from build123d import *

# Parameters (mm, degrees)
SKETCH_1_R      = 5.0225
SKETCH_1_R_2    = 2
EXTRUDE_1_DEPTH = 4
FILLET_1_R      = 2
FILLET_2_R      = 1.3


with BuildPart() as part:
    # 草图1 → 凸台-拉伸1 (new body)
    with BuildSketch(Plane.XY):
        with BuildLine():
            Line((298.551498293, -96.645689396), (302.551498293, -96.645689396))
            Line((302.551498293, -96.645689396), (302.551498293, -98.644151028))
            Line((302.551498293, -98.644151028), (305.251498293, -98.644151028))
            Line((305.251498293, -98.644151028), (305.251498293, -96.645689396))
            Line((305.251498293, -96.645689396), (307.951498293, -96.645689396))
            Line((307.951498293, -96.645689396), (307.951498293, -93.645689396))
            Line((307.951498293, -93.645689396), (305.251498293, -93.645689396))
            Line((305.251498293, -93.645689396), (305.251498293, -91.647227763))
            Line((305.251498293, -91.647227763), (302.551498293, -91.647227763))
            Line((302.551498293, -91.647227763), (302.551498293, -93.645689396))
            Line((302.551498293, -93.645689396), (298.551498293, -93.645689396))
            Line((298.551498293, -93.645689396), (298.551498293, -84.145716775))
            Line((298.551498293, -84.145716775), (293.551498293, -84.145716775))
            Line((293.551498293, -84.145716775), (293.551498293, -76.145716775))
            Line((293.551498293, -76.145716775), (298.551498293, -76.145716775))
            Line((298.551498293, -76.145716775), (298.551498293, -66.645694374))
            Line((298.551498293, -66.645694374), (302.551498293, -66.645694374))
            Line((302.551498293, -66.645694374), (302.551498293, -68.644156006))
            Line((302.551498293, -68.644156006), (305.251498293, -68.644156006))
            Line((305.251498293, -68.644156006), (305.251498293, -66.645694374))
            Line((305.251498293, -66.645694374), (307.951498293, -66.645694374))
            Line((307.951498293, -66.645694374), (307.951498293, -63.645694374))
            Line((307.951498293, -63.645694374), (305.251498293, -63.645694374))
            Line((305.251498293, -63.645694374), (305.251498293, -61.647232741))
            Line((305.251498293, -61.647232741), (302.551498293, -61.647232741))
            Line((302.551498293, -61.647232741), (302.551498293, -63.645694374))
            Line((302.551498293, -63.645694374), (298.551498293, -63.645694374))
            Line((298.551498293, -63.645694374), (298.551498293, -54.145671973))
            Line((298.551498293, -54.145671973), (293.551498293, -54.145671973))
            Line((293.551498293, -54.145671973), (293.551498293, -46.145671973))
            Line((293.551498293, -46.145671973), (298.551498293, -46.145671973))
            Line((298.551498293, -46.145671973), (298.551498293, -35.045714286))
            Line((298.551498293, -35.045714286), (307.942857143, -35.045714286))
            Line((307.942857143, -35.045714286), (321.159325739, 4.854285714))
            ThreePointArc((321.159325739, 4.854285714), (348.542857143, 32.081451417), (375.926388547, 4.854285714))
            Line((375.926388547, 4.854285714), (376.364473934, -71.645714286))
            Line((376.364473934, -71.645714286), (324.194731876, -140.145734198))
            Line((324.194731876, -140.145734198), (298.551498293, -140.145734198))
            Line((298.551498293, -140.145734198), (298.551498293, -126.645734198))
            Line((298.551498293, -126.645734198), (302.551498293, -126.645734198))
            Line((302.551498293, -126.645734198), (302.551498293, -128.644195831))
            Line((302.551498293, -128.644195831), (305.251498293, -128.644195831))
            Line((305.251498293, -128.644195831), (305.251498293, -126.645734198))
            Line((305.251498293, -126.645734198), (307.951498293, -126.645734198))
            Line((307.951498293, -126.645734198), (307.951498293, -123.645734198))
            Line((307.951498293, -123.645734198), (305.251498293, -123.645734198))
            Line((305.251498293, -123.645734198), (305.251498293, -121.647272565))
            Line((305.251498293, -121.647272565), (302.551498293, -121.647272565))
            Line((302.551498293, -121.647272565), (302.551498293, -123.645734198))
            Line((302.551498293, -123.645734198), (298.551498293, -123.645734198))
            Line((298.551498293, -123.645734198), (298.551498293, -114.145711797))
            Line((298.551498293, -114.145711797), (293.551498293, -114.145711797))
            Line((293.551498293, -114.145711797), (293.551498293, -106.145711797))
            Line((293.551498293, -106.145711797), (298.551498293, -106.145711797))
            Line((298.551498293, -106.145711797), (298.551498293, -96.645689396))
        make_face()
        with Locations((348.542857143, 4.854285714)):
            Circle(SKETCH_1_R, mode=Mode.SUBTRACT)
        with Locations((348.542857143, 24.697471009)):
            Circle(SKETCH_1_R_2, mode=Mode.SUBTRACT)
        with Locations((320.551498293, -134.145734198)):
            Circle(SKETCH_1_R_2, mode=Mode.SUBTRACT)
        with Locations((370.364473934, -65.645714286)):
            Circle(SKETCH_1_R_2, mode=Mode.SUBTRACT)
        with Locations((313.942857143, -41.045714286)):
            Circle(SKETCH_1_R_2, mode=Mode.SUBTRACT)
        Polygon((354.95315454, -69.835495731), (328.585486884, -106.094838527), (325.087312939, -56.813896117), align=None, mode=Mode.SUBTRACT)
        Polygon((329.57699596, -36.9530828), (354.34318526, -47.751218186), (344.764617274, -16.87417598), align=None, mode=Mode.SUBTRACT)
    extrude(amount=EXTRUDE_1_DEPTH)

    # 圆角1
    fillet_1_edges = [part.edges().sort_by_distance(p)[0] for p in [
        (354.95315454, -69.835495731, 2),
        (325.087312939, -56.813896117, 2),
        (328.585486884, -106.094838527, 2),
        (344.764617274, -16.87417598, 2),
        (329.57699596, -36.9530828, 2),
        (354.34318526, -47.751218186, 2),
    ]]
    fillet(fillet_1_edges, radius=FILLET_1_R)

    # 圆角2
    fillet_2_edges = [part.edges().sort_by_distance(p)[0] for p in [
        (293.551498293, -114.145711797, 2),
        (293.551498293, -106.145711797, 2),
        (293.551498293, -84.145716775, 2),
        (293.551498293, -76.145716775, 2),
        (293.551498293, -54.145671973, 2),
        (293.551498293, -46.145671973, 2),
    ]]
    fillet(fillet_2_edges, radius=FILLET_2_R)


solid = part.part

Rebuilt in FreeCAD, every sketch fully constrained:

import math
import FreeCAD as App
import Part
import Sketcher

V = App.Vector
Q = App.Units.Quantity


def edges_at(feature, points):
    """Names of the edges that pass closest to the given points."""
    edges = feature.Shape.Edges
    near = lambda p: min(range(len(edges)), key=lambda i: edges[i].distToShape(Part.Vertex(*p))[0])
    return sorted({f"Edge{near(p) + 1}" for p in points})

doc = App.newDocument("Part")
body = doc.addObject("PartDesign::Body", "Body")

sketch1 = body.newObject("Sketcher::SketchObject", "Sketch")
sketch1.AttachmentSupport = (doc.getObject("XY_Plane"), [""])
sketch1.MapMode = "FlatFace"
sketch1.addGeometry([
    Part.LineSegment(V(302.6, -96.6, 0), V(298.6, -96.6, 0)),
    Part.LineSegment(V(298.6, -96.6, 0), V(298.6, -106.1, 0)),
    Part.LineSegment(V(298.6, -106.1, 0), V(293.6, -106.1, 0)),
    Part.LineSegment(V(293.6, -106.1, 0), V(293.6, -114.1, 0)),
    Part.LineSegment(V(293.6, -114.1, 0), V(298.6, -114.1, 0)),
    Part.LineSegment(V(298.6, -114.1, 0), V(298.6, -123.6, 0)),
    Part.LineSegment(V(298.6, -123.6, 0), V(302.6, -123.6, 0)),
    Part.LineSegment(V(302.6, -123.6, 0), V(302.6, -121.6, 0)),
    Part.LineSegment(V(302.6, -121.6, 0), V(305.3, -121.6, 0)),
    Part.LineSegment(V(305.3, -121.6, 0), V(305.3, -123.6, 0)),
    Part.LineSegment(V(305.3, -123.6, 0), V(308, -123.6, 0)),
    Part.LineSegment(V(308, -123.6, 0), V(308, -126.6, 0)),
    Part.LineSegment(V(308, -126.6, 0), V(305.3, -126.6, 0)),
    Part.LineSegment(V(305.3, -126.6, 0), V(305.3, -128.6, 0)),
    Part.LineSegment(V(305.3, -128.6, 0), V(302.6, -128.6, 0)),
    Part.LineSegment(V(302.6, -128.6, 0), V(302.6, -126.6, 0)),
    Part.LineSegment(V(302.6, -126.6, 0), V(298.6, -126.6, 0)),
    Part.LineSegment(V(298.6, -126.6, 0), V(298.6, -140.1, 0)),
    Part.LineSegment(V(298.6, -140.1, 0), V(324.2, -140.1, 0)),
    Part.LineSegment(V(324.2, -140.1, 0), V(376.4, -71.6, 0)),
    Part.LineSegment(V(376.4, -71.6, 0), V(375.9, 4.9, 0)),
    Part.ArcOfCircle(Part.Circle(V(348.5, 4.7, 0), V(0, 0, 1), 27.4), math.radians(0), math.radians(180)),
    Part.LineSegment(V(321.2, 4.9, 0), V(307.9, -35, 0)),
    Part.LineSegment(V(307.9, -35, 0), V(298.6, -35, 0)),
    Part.LineSegment(V(298.6, -35, 0), V(298.6, -46.1, 0)),
    Part.LineSegment(V(298.6, -46.1, 0), V(293.6, -46.1, 0)),
    Part.LineSegment(V(293.6, -46.1, 0), V(293.6, -54.1, 0)),
    Part.LineSegment(V(293.6, -54.1, 0), V(298.6, -54.1, 0)),
    Part.LineSegment(V(298.6, -54.1, 0), V(298.6, -63.6, 0)),
    Part.LineSegment(V(298.6, -63.6, 0), V(302.6, -63.6, 0)),
    Part.LineSegment(V(302.6, -63.6, 0), V(302.6, -61.6, 0)),
    Part.LineSegment(V(302.6, -61.6, 0), V(305.3, -61.6, 0)),
    Part.LineSegment(V(305.3, -61.6, 0), V(305.3, -63.6, 0)),
    Part.LineSegment(V(305.3, -63.6, 0), V(308, -63.6, 0)),
    Part.LineSegment(V(308, -63.6, 0), V(308, -66.6, 0)),
    Part.LineSegment(V(308, -66.6, 0), V(305.3, -66.6, 0)),
    Part.LineSegment(V(305.3, -66.6, 0), V(305.3, -68.6, 0)),
    Part.LineSegment(V(305.3, -68.6, 0), V(302.6, -68.6, 0)),
    Part.LineSegment(V(302.6, -68.6, 0), V(302.6, -66.6, 0)),
    Part.LineSegment(V(302.6, -66.6, 0), V(298.6, -66.6, 0)),
    Part.LineSegment(V(298.6, -66.6, 0), V(298.6, -76.1, 0)),
    Part.LineSegment(V(298.6, -76.1, 0), V(293.6, -76.1, 0)),
    Part.LineSegment(V(293.6, -76.1, 0), V(293.6, -84.1, 0)),
    Part.LineSegment(V(293.6, -84.1, 0), V(298.6, -84.1, 0)),
    Part.LineSegment(V(298.6, -84.1, 0), V(298.6, -93.6, 0)),
    Part.LineSegment(V(298.6, -93.6, 0), V(302.6, -93.6, 0)),
    Part.LineSegment(V(302.6, -93.6, 0), V(302.6, -91.6, 0)),
    Part.LineSegment(V(302.6, -91.6, 0), V(305.3, -91.6, 0)),
    Part.LineSegment(V(305.3, -91.6, 0), V(305.3, -93.6, 0)),
    Part.LineSegment(V(305.3, -93.6, 0), V(308, -93.6, 0)),
    Part.LineSegment(V(308, -93.6, 0), V(308, -96.6, 0)),
    Part.LineSegment(V(308, -96.6, 0), V(305.3, -96.6, 0)),
    Part.LineSegment(V(305.3, -96.6, 0), V(305.3, -98.6, 0)),
    Part.LineSegment(V(305.3, -98.6, 0), V(302.6, -98.6, 0)),
    Part.LineSegment(V(302.6, -98.6, 0), V(302.6, -96.6, 0)),
    Part.Circle(V(370.4, -65.6, 0), V(0, 0, 1), 2),
    Part.Circle(V(320.6, -134.1, 0), V(0, 0, 1), 2),
    Part.LineSegment(V(355, -69.8, 0), V(328.6, -106.1, 0)),
    Part.LineSegment(V(328.6, -106.1, 0), V(325.1, -56.8, 0)),
    Part.LineSegment(V(325.1, -56.8, 0), V(355, -69.8, 0)),
    Part.Circle(V(348.5, 4.9, 0), V(0, 0, 1), 5),
    Part.Circle(V(348.5, 24.7, 0), V(0, 0, 1), 2),
    Part.LineSegment(V(329.6, -37, 0), V(344.8, -16.9, 0)),
    Part.LineSegment(V(344.8, -16.9, 0), V(354.3, -47.8, 0)),
    Part.LineSegment(V(354.3, -47.8, 0), V(329.6, -37, 0)),
    Part.Circle(V(313.9, -41, 0), V(0, 0, 1), 2),
], False)
sketch1.addConstraint([
    Sketcher.Constraint("Coincident", 0, 2, 1, 1),
    Sketcher.Constraint("Coincident", 1, 2, 2, 1),
    Sketcher.Constraint("Coincident", 2, 2, 3, 1),
    Sketcher.Constraint("Coincident", 3, 2, 4, 1),
    Sketcher.Constraint("Coincident", 4, 2, 5, 1),
    Sketcher.Constraint("Coincident", 5, 2, 6, 1),
    Sketcher.Constraint("Coincident", 6, 2, 7, 1),
    Sketcher.Constraint("Coincident", 7, 2, 8, 1),
    Sketcher.Constraint("Coincident", 8, 2, 9, 1),
    Sketcher.Constraint("Coincident", 9, 2, 10, 1),
    Sketcher.Constraint("Coincident", 10, 2, 11, 1),
    Sketcher.Constraint("Coincident", 11, 2, 12, 1),
    Sketcher.Constraint("Coincident", 12, 2, 13, 1),
    Sketcher.Constraint("Coincident", 13, 2, 14, 1),
    Sketcher.Constraint("Coincident", 14, 2, 15, 1),
    Sketcher.Constraint("Coincident", 15, 2, 16, 1),
    Sketcher.Constraint("Coincident", 16, 2, 17, 1),
    Sketcher.Constraint("Coincident", 17, 2, 18, 1),
    Sketcher.Constraint("Coincident", 18, 2, 19, 1),
    Sketcher.Constraint("Coincident", 19, 2, 20, 1),
    Sketcher.Constraint("Tangent", 20, 2, 21, 1),
    Sketcher.Constraint("Coincident", 21, 2, 22, 1),
    Sketcher.Constraint("Coincident", 22, 2, 23, 1),
    Sketcher.Constraint("Coincident", 23, 2, 24, 1),
    Sketcher.Constraint("Coincident", 24, 2, 25, 1),
    Sketcher.Constraint("Coincident", 25, 2, 26, 1),
    Sketcher.Constraint("Coincident", 26, 2, 27, 1),
    Sketcher.Constraint("Coincident", 27, 2, 28, 1),
    Sketcher.Constraint("Coincident", 28, 2, 29, 1),
    Sketcher.Constraint("Coincident", 29, 2, 30, 1),
    Sketcher.Constraint("Coincident", 30, 2, 31, 1),
    Sketcher.Constraint("Coincident", 31, 2, 32, 1),
    Sketcher.Constraint("Coincident", 32, 2, 33, 1),
    Sketcher.Constraint("Coincident", 33, 2, 34, 1),
    Sketcher.Constraint("Coincident", 34, 2, 35, 1),
    Sketcher.Constraint("Coincident", 35, 2, 36, 1),
    Sketcher.Constraint("Coincident", 36, 2, 37, 1),
    Sketcher.Constraint("Coincident", 37, 2, 38, 1),
    Sketcher.Constraint("Coincident", 38, 2, 39, 1),
    Sketcher.Constraint("Coincident", 39, 2, 40, 1),
    Sketcher.Constraint("Coincident", 40, 2, 41, 1),
    Sketcher.Constraint("Coincident", 41, 2, 42, 1),
    Sketcher.Constraint("Coincident", 42, 2, 43, 1),
    Sketcher.Constraint("Coincident", 43, 2, 44, 1),
    Sketcher.Constraint("Coincident", 44, 2, 45, 1),
    Sketcher.Constraint("Coincident", 45, 2, 46, 1),
    Sketcher.Constraint("Coincident", 46, 2, 47, 1),
    Sketcher.Constraint("Coincident", 47, 2, 48, 1),
    Sketcher.Constraint("Coincident", 48, 2, 49, 1),
    Sketcher.Constraint("Coincident", 49, 2, 50, 1),
    Sketcher.Constraint("Coincident", 50, 2, 51, 1),
    Sketcher.Constraint("Coincident", 51, 2, 52, 1),
    Sketcher.Constraint("Coincident", 52, 2, 53, 1),
    Sketcher.Constraint("Coincident", 53, 2, 54, 1),
    Sketcher.Constraint("Coincident", 54, 2, 0, 1),
    Sketcher.Constraint("Coincident", 57, 2, 58, 1),
    Sketcher.Constraint("Coincident", 58, 2, 59, 1),
    Sketcher.Constraint("Coincident", 59, 2, 57, 1),
    Sketcher.Constraint("Coincident", 62, 2, 63, 1),
    Sketcher.Constraint("Coincident", 63, 2, 64, 1),
    Sketcher.Constraint("Coincident", 64, 2, 62, 1),
    Sketcher.Constraint("Horizontal", 0),
    Sketcher.Constraint("Vertical", 1),
    Sketcher.Constraint("Horizontal", 2),
    Sketcher.Constraint("Vertical", 3),
    Sketcher.Constraint("Horizontal", 4),
    Sketcher.Constraint("Vertical", 5),
    Sketcher.Constraint("Horizontal", 6),
    Sketcher.Constraint("Vertical", 7),
    Sketcher.Constraint("Horizontal", 8),
    Sketcher.Constraint("Vertical", 9),
    Sketcher.Constraint("Horizontal", 10),
    Sketcher.Constraint("Vertical", 11),
    Sketcher.Constraint("Horizontal", 12),
    Sketcher.Constraint("Vertical", 13),
    Sketcher.Constraint("Horizontal", 14),
    Sketcher.Constraint("Vertical", 15),
    Sketcher.Constraint("Horizontal", 16),
    Sketcher.Constraint("Vertical", 17),
    Sketcher.Constraint("Horizontal", 18),
    Sketcher.Constraint("Horizontal", 23),
    Sketcher.Constraint("Vertical", 24),
    Sketcher.Constraint("Horizontal", 25),
    Sketcher.Constraint("Vertical", 26),
    Sketcher.Constraint("Horizontal", 27),
    Sketcher.Constraint("Vertical", 28),
    Sketcher.Constraint("Horizontal", 29),
    Sketcher.Constraint("Vertical", 30),
    Sketcher.Constraint("Horizontal", 31),
    Sketcher.Constraint("Vertical", 32),
    Sketcher.Constraint("Horizontal", 33),
    Sketcher.Constraint("Vertical", 34),
    Sketcher.Constraint("Horizontal", 35),
    Sketcher.Constraint("Vertical", 36),
    Sketcher.Constraint("Horizontal", 37),
    Sketcher.Constraint("Vertical", 38),
    Sketcher.Constraint("Horizontal", 39),
    Sketcher.Constraint("Vertical", 40),
    Sketcher.Constraint("Horizontal", 41),
    Sketcher.Constraint("Vertical", 42),
    Sketcher.Constraint("Horizontal", 43),
    Sketcher.Constraint("Vertical", 44),
    Sketcher.Constraint("Horizontal", 45),
    Sketcher.Constraint("Vertical", 46),
    Sketcher.Constraint("Horizontal", 47),
    Sketcher.Constraint("Vertical", 48),
    Sketcher.Constraint("Horizontal", 49),
    Sketcher.Constraint("Vertical", 50),
    Sketcher.Constraint("Horizontal", 51),
    Sketcher.Constraint("Vertical", 52),
    Sketcher.Constraint("Horizontal", 53),
    Sketcher.Constraint("Vertical", 54),
    Sketcher.Constraint("Equal", 55, 56),
    Sketcher.Constraint("Equal", 56, 61),
    Sketcher.Constraint("Equal", 61, 65),
    Sketcher.Constraint("Parallel", 59, 64),
    Sketcher.Constraint("Horizontal", 6, 2, 9, 2),
    Sketcher.Constraint("Horizontal", 12, 2, 15, 2),
    Sketcher.Constraint("Horizontal", 60, 3, 20, 2),
    Sketcher.Constraint("Horizontal", 20, 2, 21, 2),
    Sketcher.Constraint("Horizontal", 29, 2, 32, 2),
    Sketcher.Constraint("Horizontal", 35, 2, 38, 2),
    Sketcher.Constraint("Horizontal", 45, 2, 48, 2),
    Sketcher.Constraint("Horizontal", 0, 2, 50, 2),
    Sketcher.Constraint("Vertical", 21, 3, 60, 3),
    Sketcher.Constraint("Vertical", 60, 3, 61, 3),
    Sketcher.Constraint("Vertical", 1, 2, 4, 2),
    Sketcher.Constraint("Vertical", 9, 2, 12, 2),
    Sketcher.Constraint("Vertical", 7, 2, 14, 2),
    Sketcher.Constraint("Vertical", 5, 2, 16, 2),
    Sketcher.Constraint("Vertical", 17, 2, 23, 2),
    Sketcher.Constraint("Vertical", 3, 2, 25, 2),
    Sketcher.Constraint("Vertical", 24, 2, 27, 2),
    Sketcher.Constraint("Vertical", 15, 2, 29, 2),
    Sketcher.Constraint("Vertical", 13, 2, 31, 2),
    Sketcher.Constraint("Vertical", 11, 2, 33, 2),
    Sketcher.Constraint("Vertical", 32, 2, 35, 2),
    Sketcher.Constraint("Vertical", 30, 2, 37, 2),
    Sketcher.Constraint("Vertical", 28, 2, 39, 2),
    Sketcher.Constraint("Vertical", 26, 2, 41, 2),
    Sketcher.Constraint("Vertical", 40, 2, 43, 2),
    Sketcher.Constraint("Vertical", 38, 2, 45, 2),
    Sketcher.Constraint("Vertical", 36, 2, 47, 2),
    Sketcher.Constraint("Vertical", 34, 2, 49, 2),
    Sketcher.Constraint("Vertical", 48, 2, 51, 2),
    Sketcher.Constraint("Vertical", 46, 2, 53, 2),
    Sketcher.Constraint("Equal", 8, 10),
    Sketcher.Constraint("Equal", 1, 5),
    Sketcher.Constraint("Equal", 9, 13),
    Sketcher.Constraint("Equal", 3, 26),
    Sketcher.Constraint("Equal", 5, 28),
    Sketcher.Constraint("Equal", 15, 30),
    Sketcher.Constraint("Equal", 11, 34),
    Sketcher.Constraint("Equal", 32, 36),
    Sketcher.Constraint("Equal", 28, 40),
    Sketcher.Constraint("Equal", 26, 42),
    Sketcher.Constraint("Equal", 38, 46),
    Sketcher.Constraint("Equal", 34, 50),
    Sketcher.Constraint("Equal", 48, 52),
    Sketcher.Constraint("Diameter", 55, Q("4 mm")),
    Sketcher.Constraint("DistanceX", 0, 2, 0, 1, Q("4 mm")),
    Sketcher.Constraint("DistanceX", 2, 2, 2, 1, Q("5 mm")),
    Sketcher.Constraint("DistanceY", 3, 2, 3, 1, Q("8 mm")),
    Sketcher.Constraint("DistanceY", 11, 2, 11, 1, Q("3 mm")),
    Sketcher.Constraint("Diameter", 60, Q("10.045 mm")),
    Sketcher.Constraint("DistanceX", 8, 1, 8, 2, Q("2.7 mm")),
    Sketcher.Constraint("DistanceY", 17, 2, 17, 1, Q("13.5 mm")),
    Sketcher.Constraint("Radius", 21, Q("27.38398 mm")),
    Sketcher.Constraint("DistanceX", 23, 2, 23, 1, Q("9.391359 mm")),
    Sketcher.Constraint("DistanceY", 7, 1, 7, 2, Q("1.998462 mm")),
    Sketcher.Constraint("DistanceX", -1, 1, 56, 3, Q("320.551498 mm")),
    Sketcher.Constraint("DistanceX", -1, 1, 0, 2, Q("298.551498 mm")),
    Sketcher.Constraint("Distance", 19, Q("86.104208 mm")),
    Sketcher.Constraint("DistanceX", 18, 1, 18, 2, Q("25.643234 mm")),
    Sketcher.Constraint("DistanceY", 1, 2, 1, 1, Q("9.500022 mm")),
    Sketcher.Constraint("DistanceY", 24, 2, 24, 1, Q("11.099958 mm")),
    Sketcher.Constraint("DistanceY", 44, 2, 44, 1, Q("9.499973 mm")),
    Sketcher.Constraint("DistanceY", -1, 1, 21, 3, Q("4.697471 mm")),
    Sketcher.Constraint("DistanceY", -1, 1, 61, 3, Q("24.697471 mm")),
    Sketcher.Constraint("DistanceY", 0, 2, -1, 1, Q("96.645689 mm")),
    Sketcher.Constraint("DistanceX", -1, 1, 20, 2, Q("375.926389 mm")),
    Sketcher.Constraint("DistanceY", 57, 2, -1, 1, Q("106.094839 mm")),
    Sketcher.Constraint("DistanceY", 63, 2, -1, 1, Q("47.751218 mm")),
    Sketcher.Constraint("Distance", 20, Q("76.501254 mm")),
    Sketcher.Constraint("Distance", 57, Q("44.832955 mm")),
    Sketcher.Constraint("Distance", 58, Q("49.404944 mm")),
    Sketcher.Constraint("Distance", 59, Q("32.581138 mm")),
    Sketcher.Constraint("Distance", 62, Q("25.175908 mm")),
    Sketcher.Constraint("Distance", 63, Q("32.328636 mm")),
    Sketcher.Constraint("Distance", 64, Q("27.017843 mm")),
    Sketcher.Constraint("DistanceX", -1, 1, 55, 3, Q("370.364474 mm")),
    Sketcher.Constraint("DistanceY", 55, 3, -1, 1, Q("65.645714 mm")),
    Sketcher.Constraint("DistanceY", 56, 3, -1, 1, Q("134.145734 mm")),
    Sketcher.Constraint("DistanceX", -1, 1, 65, 3, Q("313.942857 mm")),
    Sketcher.Constraint("DistanceY", 65, 3, -1, 1, Q("41.045714 mm")),
    Sketcher.Constraint("DistanceX", -1, 1, 57, 2, Q("328.585487 mm")),
    Sketcher.Constraint("DistanceX", -1, 1, 58, 2, Q("325.087313 mm")),
    Sketcher.Constraint("DistanceX", -1, 1, 62, 2, Q("344.764617 mm")),
])
pad1 = body.newObject("PartDesign::Pad", "Pad")
pad1.Profile = sketch1
pad1.Length = 4
doc.recompute()

fillet = body.newObject("PartDesign::Fillet", "Fillet")
fillet.Base = (pad1, edges_at(pad1, [
    (354.953, -69.835, 2),
    (325.087, -56.814, 2),
    (328.585, -106.095, 2),
    (344.765, -16.874, 2),
    (329.577, -36.953, 2),
    (354.343, -47.751, 2),
]))
fillet.Radius = 2
doc.recompute()

fillet2 = body.newObject("PartDesign::Fillet", "Fillet001")
fillet2.Base = (fillet, edges_at(fillet, [
    (293.551, -114.146, 2),
    (293.551, -106.146, 2),
    (293.551, -84.146, 2),
    (293.551, -76.146, 2),
    (293.551, -54.146, 2),
    (293.551, -46.146, 2),
]))
fillet2.Radius = 1.3

doc.recompute()
